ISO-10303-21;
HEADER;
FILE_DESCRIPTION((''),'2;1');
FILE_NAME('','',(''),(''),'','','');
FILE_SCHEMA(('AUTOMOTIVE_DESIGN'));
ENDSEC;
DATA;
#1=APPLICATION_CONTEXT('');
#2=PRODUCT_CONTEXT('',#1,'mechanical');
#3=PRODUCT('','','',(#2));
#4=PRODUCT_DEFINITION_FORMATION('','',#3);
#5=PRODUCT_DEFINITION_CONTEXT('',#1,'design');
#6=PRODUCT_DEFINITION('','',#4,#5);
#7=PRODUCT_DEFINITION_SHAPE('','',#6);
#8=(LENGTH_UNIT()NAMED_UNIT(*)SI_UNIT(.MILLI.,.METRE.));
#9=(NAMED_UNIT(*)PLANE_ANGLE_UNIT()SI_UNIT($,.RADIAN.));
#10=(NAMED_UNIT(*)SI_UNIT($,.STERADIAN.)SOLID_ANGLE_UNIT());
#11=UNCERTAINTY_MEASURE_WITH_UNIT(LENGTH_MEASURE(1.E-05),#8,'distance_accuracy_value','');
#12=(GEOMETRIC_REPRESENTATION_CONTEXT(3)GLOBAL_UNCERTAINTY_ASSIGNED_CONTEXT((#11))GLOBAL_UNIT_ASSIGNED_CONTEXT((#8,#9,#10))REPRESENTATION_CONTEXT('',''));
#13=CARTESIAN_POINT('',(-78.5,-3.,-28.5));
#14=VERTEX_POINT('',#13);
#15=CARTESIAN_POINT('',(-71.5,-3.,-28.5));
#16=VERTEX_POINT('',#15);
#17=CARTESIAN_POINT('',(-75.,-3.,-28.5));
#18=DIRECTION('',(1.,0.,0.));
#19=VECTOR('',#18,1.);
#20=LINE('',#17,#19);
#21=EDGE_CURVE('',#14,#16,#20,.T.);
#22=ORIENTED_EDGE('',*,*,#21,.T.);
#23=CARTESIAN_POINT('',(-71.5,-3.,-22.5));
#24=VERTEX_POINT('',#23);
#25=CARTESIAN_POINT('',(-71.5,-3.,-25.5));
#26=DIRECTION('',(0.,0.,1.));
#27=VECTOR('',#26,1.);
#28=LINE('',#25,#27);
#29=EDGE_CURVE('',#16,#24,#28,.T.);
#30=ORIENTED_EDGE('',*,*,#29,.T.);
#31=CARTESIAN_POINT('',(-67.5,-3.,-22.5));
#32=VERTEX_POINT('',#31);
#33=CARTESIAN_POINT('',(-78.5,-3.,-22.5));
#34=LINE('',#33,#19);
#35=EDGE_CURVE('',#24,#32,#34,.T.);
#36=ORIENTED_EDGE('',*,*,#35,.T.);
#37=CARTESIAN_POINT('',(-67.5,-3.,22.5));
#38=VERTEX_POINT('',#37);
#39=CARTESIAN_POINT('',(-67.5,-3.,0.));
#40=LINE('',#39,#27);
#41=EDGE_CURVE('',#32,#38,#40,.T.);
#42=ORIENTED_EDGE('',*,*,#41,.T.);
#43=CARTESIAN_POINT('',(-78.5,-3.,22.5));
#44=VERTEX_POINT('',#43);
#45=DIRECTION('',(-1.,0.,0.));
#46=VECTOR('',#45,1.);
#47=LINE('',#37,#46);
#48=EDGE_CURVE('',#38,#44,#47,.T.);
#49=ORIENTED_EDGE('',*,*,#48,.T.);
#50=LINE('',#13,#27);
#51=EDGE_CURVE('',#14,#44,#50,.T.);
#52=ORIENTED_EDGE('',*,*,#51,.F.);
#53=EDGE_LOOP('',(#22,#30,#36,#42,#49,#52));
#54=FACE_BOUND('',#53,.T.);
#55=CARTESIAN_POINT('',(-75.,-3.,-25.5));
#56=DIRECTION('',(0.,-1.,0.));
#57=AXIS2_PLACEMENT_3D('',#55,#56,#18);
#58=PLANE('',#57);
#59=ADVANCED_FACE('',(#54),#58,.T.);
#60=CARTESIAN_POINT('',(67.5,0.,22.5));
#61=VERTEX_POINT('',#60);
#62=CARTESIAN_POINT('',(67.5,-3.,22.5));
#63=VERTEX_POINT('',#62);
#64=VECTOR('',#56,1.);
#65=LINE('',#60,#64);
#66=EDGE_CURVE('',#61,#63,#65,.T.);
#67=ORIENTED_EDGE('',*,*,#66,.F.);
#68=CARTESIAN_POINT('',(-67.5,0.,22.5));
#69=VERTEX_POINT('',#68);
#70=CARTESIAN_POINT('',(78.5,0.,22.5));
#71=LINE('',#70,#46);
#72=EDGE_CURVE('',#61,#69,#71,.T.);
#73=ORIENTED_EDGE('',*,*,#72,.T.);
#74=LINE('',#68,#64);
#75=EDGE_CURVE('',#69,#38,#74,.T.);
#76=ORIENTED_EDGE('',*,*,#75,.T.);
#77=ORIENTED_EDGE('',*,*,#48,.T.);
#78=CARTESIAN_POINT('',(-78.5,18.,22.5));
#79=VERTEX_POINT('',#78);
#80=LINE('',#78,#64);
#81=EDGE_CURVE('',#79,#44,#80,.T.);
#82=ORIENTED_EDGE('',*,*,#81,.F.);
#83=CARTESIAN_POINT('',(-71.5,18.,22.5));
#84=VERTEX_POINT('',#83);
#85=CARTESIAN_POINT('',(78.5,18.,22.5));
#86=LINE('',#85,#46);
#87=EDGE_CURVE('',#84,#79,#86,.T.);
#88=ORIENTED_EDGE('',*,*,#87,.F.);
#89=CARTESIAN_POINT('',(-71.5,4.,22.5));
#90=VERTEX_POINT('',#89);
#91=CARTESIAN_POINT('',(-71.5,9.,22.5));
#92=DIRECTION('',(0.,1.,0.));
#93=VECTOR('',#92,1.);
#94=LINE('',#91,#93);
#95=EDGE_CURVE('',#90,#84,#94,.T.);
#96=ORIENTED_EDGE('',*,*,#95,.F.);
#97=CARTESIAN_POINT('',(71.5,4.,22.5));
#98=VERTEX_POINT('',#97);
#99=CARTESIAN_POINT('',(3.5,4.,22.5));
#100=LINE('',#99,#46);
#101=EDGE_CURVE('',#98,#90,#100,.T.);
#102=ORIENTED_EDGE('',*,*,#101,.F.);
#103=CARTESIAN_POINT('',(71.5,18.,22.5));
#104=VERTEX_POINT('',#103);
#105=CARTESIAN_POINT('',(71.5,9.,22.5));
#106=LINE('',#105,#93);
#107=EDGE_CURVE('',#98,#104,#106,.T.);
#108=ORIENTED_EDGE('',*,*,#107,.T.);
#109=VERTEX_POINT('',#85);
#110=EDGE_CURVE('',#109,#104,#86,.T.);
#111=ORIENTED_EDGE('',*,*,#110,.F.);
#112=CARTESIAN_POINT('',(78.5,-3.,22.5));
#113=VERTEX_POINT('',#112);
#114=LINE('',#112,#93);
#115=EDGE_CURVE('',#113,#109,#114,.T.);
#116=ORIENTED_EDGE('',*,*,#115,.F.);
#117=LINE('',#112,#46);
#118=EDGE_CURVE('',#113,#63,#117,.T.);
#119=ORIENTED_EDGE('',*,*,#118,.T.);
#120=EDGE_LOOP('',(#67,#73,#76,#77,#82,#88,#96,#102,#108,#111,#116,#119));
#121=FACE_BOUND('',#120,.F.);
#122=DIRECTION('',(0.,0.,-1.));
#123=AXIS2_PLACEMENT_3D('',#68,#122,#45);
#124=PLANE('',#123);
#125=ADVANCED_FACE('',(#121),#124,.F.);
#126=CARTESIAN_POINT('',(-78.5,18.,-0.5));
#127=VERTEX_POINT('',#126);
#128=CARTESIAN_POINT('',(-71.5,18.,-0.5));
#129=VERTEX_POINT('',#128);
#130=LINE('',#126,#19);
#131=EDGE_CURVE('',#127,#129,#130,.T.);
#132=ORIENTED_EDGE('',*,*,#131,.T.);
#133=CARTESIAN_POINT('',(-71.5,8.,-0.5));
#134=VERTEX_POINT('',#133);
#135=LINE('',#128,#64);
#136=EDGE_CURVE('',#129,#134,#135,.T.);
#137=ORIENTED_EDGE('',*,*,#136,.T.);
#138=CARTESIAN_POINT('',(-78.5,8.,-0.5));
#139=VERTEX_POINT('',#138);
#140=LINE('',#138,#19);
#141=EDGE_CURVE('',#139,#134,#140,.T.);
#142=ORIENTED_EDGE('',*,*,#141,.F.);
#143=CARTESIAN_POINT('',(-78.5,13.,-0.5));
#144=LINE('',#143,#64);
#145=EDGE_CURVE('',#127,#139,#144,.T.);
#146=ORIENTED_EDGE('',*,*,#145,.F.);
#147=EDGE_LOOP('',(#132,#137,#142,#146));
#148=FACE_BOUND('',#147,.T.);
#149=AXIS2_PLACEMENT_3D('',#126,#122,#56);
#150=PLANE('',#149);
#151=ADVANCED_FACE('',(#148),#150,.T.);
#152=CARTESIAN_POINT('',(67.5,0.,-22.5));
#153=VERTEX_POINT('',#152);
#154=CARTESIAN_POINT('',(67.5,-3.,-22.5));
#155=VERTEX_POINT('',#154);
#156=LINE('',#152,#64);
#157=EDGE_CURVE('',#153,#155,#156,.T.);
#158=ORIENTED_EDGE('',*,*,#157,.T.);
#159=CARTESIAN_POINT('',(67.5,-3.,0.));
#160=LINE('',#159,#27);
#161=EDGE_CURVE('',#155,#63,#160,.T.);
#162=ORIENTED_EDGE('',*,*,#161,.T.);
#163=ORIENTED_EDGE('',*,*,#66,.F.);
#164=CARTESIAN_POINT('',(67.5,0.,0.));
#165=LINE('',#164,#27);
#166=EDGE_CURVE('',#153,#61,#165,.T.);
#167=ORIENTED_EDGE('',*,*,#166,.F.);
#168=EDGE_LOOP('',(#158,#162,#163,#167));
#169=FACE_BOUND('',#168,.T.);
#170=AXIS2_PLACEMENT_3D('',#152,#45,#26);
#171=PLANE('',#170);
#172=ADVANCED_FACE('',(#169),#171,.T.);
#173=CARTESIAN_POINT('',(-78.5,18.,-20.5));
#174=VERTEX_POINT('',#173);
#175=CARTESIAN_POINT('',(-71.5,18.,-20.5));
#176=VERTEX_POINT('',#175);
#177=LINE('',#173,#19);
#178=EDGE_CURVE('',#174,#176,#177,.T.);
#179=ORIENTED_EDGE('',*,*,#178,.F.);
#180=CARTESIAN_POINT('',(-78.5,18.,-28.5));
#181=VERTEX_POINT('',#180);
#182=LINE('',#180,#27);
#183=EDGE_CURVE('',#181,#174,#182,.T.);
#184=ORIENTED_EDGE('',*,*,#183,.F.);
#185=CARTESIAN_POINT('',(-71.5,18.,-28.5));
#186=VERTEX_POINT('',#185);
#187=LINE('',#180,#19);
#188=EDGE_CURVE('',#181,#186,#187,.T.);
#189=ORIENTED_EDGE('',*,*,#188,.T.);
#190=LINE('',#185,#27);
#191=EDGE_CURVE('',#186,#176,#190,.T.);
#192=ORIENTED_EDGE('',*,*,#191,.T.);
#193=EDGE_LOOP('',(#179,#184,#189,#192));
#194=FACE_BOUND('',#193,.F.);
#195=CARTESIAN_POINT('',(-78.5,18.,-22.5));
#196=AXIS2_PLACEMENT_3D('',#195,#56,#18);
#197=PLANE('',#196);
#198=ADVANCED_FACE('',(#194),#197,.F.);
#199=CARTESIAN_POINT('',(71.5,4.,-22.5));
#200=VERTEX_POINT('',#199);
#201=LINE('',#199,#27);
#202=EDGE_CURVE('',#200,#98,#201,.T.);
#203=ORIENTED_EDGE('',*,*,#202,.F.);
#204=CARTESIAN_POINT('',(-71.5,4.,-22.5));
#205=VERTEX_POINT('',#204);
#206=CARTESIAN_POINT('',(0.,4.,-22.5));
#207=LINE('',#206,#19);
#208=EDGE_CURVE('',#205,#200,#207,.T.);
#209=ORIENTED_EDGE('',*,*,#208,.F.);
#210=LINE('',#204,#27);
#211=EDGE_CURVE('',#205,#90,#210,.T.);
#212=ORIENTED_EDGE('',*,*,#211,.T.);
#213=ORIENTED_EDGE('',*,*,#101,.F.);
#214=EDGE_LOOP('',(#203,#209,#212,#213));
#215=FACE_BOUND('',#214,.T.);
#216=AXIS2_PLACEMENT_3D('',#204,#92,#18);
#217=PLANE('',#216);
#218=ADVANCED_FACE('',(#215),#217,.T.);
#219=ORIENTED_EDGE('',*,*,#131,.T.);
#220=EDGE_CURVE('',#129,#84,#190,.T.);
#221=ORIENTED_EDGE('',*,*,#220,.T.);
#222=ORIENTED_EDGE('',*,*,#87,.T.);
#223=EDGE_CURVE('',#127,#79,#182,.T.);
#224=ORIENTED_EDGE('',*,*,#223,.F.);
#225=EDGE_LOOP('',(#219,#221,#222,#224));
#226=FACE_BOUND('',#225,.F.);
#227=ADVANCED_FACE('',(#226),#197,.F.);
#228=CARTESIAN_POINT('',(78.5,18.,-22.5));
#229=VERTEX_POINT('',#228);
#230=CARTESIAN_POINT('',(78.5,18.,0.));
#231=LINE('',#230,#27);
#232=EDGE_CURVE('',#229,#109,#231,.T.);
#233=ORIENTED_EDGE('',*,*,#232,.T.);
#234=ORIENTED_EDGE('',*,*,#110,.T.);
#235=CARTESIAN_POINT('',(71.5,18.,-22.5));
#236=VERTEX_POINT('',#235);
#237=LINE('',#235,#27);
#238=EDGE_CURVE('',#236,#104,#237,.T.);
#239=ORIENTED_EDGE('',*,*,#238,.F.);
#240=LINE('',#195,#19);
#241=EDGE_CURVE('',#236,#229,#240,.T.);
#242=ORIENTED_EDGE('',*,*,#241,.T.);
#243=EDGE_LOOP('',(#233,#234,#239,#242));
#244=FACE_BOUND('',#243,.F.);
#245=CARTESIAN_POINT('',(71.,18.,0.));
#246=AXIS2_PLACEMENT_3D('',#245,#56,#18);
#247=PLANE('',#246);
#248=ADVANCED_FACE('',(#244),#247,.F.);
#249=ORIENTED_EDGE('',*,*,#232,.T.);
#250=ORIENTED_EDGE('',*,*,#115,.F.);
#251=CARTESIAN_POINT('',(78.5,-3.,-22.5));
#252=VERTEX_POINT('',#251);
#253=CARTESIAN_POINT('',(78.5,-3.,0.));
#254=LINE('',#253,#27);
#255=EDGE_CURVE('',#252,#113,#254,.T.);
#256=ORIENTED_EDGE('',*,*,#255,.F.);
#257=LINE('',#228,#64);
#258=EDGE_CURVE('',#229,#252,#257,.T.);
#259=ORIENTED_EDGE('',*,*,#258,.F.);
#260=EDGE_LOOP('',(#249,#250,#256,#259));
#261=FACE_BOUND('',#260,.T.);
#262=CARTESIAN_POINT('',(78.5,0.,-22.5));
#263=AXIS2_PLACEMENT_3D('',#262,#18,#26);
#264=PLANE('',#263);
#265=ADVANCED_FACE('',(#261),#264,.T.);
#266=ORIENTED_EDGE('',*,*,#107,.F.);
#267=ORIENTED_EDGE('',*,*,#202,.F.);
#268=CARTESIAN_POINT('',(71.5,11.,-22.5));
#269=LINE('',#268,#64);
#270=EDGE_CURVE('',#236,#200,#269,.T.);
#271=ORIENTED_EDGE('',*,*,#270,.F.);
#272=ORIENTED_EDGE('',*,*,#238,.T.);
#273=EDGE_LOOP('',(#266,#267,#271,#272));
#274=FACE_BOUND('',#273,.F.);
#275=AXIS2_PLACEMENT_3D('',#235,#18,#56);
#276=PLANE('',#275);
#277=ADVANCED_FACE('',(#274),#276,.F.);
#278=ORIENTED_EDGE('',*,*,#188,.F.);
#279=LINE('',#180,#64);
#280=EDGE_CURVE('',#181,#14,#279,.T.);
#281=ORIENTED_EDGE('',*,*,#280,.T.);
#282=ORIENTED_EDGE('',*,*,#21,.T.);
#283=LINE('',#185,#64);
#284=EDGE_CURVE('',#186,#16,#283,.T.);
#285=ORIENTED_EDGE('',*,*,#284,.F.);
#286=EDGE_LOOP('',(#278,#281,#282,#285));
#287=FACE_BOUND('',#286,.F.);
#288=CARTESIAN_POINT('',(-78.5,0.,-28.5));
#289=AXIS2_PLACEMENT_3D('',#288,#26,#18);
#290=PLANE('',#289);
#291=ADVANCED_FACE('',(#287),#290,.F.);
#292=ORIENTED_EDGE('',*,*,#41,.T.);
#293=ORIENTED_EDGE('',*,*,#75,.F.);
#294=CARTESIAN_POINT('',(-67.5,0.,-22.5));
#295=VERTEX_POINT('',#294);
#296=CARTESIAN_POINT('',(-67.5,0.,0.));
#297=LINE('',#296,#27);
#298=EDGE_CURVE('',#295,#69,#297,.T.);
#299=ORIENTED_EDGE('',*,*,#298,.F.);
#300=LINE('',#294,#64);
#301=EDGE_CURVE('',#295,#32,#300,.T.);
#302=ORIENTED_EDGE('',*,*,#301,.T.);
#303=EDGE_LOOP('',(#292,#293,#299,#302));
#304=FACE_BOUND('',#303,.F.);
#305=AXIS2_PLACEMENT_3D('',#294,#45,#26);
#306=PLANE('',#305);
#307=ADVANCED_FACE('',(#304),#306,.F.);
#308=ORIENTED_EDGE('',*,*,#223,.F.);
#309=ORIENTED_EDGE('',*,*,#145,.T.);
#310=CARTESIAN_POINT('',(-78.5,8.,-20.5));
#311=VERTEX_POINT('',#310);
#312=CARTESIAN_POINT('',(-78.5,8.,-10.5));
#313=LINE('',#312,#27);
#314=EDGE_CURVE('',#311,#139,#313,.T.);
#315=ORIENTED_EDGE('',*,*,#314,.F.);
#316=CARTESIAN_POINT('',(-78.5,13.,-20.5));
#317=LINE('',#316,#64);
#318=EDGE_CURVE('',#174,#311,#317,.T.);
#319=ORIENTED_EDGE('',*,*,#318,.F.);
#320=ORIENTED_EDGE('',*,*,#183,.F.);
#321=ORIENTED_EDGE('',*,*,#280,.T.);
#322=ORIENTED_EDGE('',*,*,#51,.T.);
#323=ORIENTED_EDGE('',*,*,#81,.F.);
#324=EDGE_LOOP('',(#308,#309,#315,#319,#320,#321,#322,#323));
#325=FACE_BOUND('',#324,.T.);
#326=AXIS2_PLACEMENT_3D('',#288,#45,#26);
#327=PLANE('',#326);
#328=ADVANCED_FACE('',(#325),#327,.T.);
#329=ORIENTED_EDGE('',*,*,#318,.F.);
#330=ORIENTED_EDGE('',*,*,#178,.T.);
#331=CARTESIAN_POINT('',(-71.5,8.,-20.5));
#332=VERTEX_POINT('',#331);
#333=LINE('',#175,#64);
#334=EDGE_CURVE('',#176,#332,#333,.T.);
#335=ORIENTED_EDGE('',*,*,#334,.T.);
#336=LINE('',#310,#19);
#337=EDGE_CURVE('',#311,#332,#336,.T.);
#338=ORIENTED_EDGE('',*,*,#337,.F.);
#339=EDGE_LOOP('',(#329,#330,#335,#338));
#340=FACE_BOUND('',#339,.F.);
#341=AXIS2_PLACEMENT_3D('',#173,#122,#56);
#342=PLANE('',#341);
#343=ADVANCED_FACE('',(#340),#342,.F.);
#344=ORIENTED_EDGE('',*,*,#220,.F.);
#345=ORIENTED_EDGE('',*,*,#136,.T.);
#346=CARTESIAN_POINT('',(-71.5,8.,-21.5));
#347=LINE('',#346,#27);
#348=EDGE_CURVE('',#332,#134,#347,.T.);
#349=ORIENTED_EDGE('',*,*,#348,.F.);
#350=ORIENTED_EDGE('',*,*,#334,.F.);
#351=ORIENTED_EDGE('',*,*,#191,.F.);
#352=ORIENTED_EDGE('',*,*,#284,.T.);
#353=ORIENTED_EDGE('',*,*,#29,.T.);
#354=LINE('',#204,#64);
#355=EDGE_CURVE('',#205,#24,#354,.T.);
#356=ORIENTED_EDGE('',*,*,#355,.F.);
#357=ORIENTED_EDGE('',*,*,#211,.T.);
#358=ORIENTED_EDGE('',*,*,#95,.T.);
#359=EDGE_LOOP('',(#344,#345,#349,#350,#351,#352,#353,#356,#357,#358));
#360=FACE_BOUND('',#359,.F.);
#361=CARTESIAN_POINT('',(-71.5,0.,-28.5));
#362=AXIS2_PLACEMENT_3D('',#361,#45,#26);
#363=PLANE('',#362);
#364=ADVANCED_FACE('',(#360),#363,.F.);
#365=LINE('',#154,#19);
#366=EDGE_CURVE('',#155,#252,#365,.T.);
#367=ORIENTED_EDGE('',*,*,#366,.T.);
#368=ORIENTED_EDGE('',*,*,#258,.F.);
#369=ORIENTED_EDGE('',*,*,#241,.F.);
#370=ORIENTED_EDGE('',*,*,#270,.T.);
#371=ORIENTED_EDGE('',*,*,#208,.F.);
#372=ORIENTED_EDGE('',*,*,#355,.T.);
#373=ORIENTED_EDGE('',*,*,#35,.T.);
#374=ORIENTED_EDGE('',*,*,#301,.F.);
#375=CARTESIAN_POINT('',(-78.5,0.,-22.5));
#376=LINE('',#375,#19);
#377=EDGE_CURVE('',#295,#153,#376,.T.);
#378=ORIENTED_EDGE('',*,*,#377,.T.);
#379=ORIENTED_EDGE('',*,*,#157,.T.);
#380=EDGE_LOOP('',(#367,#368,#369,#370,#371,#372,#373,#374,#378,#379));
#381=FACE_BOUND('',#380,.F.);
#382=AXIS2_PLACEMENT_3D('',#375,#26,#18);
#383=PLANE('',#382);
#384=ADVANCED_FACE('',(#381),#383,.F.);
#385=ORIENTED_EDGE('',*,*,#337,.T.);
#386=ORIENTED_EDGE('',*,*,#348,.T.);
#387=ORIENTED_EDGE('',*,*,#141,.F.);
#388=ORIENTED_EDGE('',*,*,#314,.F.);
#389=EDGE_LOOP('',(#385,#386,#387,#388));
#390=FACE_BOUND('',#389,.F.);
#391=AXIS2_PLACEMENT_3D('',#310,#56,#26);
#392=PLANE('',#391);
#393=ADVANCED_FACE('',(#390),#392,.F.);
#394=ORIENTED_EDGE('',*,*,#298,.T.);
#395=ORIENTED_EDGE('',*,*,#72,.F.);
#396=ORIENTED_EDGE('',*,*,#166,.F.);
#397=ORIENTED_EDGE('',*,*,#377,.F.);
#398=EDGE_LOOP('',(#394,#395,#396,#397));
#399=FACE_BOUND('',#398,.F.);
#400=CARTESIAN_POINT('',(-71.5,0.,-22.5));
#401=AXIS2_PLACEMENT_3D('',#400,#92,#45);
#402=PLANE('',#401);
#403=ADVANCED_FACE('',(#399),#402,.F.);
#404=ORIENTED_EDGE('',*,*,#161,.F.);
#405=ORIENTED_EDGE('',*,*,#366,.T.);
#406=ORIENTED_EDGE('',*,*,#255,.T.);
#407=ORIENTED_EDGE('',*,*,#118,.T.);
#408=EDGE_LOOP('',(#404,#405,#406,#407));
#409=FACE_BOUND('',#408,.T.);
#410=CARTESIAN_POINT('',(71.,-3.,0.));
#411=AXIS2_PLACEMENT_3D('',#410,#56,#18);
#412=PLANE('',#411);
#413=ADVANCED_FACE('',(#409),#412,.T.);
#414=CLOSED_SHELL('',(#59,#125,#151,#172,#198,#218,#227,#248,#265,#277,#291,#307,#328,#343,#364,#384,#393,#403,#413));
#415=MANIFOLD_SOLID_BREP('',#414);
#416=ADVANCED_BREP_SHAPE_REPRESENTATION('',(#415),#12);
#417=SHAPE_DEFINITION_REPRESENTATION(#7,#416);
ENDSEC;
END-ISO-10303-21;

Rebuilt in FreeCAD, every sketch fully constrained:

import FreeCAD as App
import Part
import Sketcher

V = App.Vector
Q = App.Units.Quantity


def add_polygon(sketch, points):
    """Adds a closed chain of lines whose ends are joined by coincident constraints."""
    first, n = sketch.GeometryCount, len(points)
    for a, b in zip(points, points[1:] + points[:1]):
        sketch.addGeometry(Part.LineSegment(App.Vector(*a, 0), App.Vector(*b, 0)), False)
    for i in range(n):
        sketch.addConstraint(Sketcher.Constraint("Coincident", first + i, 2, first + (i + 1) % n, 1))

doc = App.newDocument("Part")
body = doc.addObject("PartDesign::Body", "Body")

# Sketch on XZ plane
sketch1 = doc.addObject("Sketcher::SketchObject", "Sketch")
body.addObject(sketch1)
sketch1.AttachmentSupport = (doc.XZ_Plane, [""])
sketch1.MapMode = "FlatFace"
add_polygon(sketch1, [(-78.5, 22.5), (-78.5, -22.5), (78.5, -22.5), (78.5, 22.5)])  # lines 0-3
sketch1.addConstraint([
    Sketcher.Constraint("Vertical", 0),
    Sketcher.Constraint("Horizontal", 1),
    Sketcher.Constraint("Vertical", 2),
    Sketcher.Constraint("Horizontal", 3),
    Sketcher.Constraint("Symmetric", 0, 2, 2, 2, -1, 1),
    Sketcher.Constraint("DistanceX", 1, 1, 1, 2, Q("157 mm")),
    Sketcher.Constraint("DistanceY", 0, 2, 0, 1, Q("45 mm")),
])
pad1 = doc.addObject("PartDesign::Pad", "Pad")
body.addObject(pad1)
pad1.Profile = sketch1
pad1.Length = 18
pad1.Reversed = True

# Sketch on XY plane
sketch2 = doc.addObject("Sketcher::SketchObject", "Sketch001")
body.addObject(sketch2)
sketch2.AttachmentSupport = (doc.XY_Plane, [""])
sketch2.MapMode = "FlatFace"
sketch2.AttachmentOffset = App.Placement(V(0, 0, -22.5), App.Rotation())
add_polygon(sketch2, [(-71.5, 4), (-71.5, 18), (71.5, 18), (71.5, 4)])  # lines 0-3
sketch2.addConstraint([
    Sketcher.Constraint("Vertical", 0),
    Sketcher.Constraint("Horizontal", 1),
    Sketcher.Constraint("Vertical", 2),
    Sketcher.Constraint("Horizontal", 3),
    Sketcher.Constraint("DistanceX", 1, 1, 1, 2, Q("143 mm")),
    Sketcher.Constraint("DistanceY", 0, 1, 0, 2, Q("14 mm")),
    Sketcher.Constraint("DistanceY", -1, 1, 0, 2, Q("18 mm")),
    Sketcher.Constraint("DistanceX", 0, 2, -1, 1, Q("71.5 mm")),
])
pocket1 = doc.addObject("PartDesign::Pocket", "Pocket")
body.addObject(pocket1)
pocket1.Profile = sketch2
pocket1.Length = 55
pocket1.Reversed = True

# Sketch on XY plane
sketch3 = doc.addObject("Sketcher::SketchObject", "Sketch002")
body.addObject(sketch3)
sketch3.AttachmentSupport = (doc.XY_Plane, [""])
sketch3.MapMode = "FlatFace"
sketch3.AttachmentOffset = App.Placement(V(0, 0, -22.5), App.Rotation())
add_polygon(sketch3, [(-71.5, 18), (-71.5, 0), (-78.5, 0), (-78.5, 18)])  # lines 0-3
sketch3.addConstraint([
    Sketcher.Constraint("Vertical", 0),
    Sketcher.Constraint("Horizontal", 1),
    Sketcher.Constraint("Vertical", 2),
    Sketcher.Constraint("Horizontal", 3),
    Sketcher.Constraint("PointOnObject", 0, 2, -1),
    Sketcher.Constraint("DistanceX", 1, 2, 1, 1, Q("7 mm")),
    Sketcher.Constraint("DistanceY", 0, 2, 0, 1, Q("18 mm")),
    Sketcher.Constraint("DistanceX", 0, 2, -1, 1, Q("71.5 mm")),
])
pad2 = doc.addObject("PartDesign::Pad", "Pad001")
body.addObject(pad2)
pad2.Profile = sketch3
pad2.Length = 6
pad2.Reversed = True

# Sketch on YZ plane
sketch4 = doc.addObject("Sketcher::SketchObject", "Sketch003")
body.addObject(sketch4)
sketch4.AttachmentSupport = (doc.YZ_Plane, [""])
sketch4.MapMode = "FlatFace"
sketch4.AttachmentOffset = App.Placement(V(0, 0, -78.5), App.Rotation())
add_polygon(sketch4, [(18, -0.5), (18, -20.5), (8, -20.5), (8, -0.5)])  # lines 0-3
sketch4.addConstraint([
    Sketcher.Constraint("Vertical", 0),
    Sketcher.Constraint("Horizontal", 1),
    Sketcher.Constraint("Vertical", 2),
    Sketcher.Constraint("Horizontal", 3),
    Sketcher.Constraint("DistanceX", 1, 2, 1, 1, Q("10 mm")),
    Sketcher.Constraint("DistanceY", 0, 2, 0, 1, Q("20 mm")),
    Sketcher.Constraint("DistanceX", -1, 1, 0, 2, Q("18 mm")),
    Sketcher.Constraint("DistanceY", 0, 2, -1, 1, Q("20.5 mm")),
])
pocket2 = doc.addObject("PartDesign::Pocket", "Pocket001")
body.addObject(pocket2)
pocket2.Profile = sketch4
pocket2.Length = 25
pocket2.Reversed = True
body2 = doc.addObject("PartDesign::Body", "Body001")

# Sketch on XZ plane
sketch5 = doc.addObject("Sketcher::SketchObject", "Sketch004")
body2.addObject(sketch5)
sketch5.AttachmentSupport = (doc.getObject("XZ_Plane001"), [""])
sketch5.MapMode = "FlatFace"
add_polygon(sketch5, [(67.5, 22.5), (67.5, -22.5), (78.5, -22.5), (78.5, 22.5)])  # lines 0-3
sketch5.addConstraint([
    Sketcher.Constraint("Vertical", 0),
    Sketcher.Constraint("Horizontal", 1),
    Sketcher.Constraint("Vertical", 2),
    Sketcher.Constraint("Horizontal", 3),
    Sketcher.Constraint("DistanceX", 1, 1, 1, 2, Q("11 mm")),
    Sketcher.Constraint("DistanceY", 0, 2, 0, 1, Q("45 mm")),
    Sketcher.Constraint("DistanceX", -1, 1, 0, 2, Q("67.5 mm")),
    Sketcher.Constraint("DistanceY", 0, 2, -1, 1, Q("22.5 mm")),
])
pad3 = doc.addObject("PartDesign::Pad", "Pad002")
body2.addObject(pad3)
pad3.Profile = sketch5
pad3.Length = 3
body3 = doc.addObject("PartDesign::Body", "Body002")

# Sketch on XZ plane
sketch6 = doc.addObject("Sketcher::SketchObject", "Sketch005")
body3.addObject(sketch6)
sketch6.AttachmentSupport = (doc.getObject("XZ_Plane002"), [""])
sketch6.MapMode = "FlatFace"
add_polygon(sketch6, [(-67.5, -22.5), (-67.5, 22.5), (-78.5, 22.5), (-78.5, -22.5)])  # lines 0-3
sketch6.addConstraint([
    Sketcher.Constraint("Vertical", 0),
    Sketcher.Constraint("Horizontal", 1),
    Sketcher.Constraint("Vertical", 2),
    Sketcher.Constraint("Horizontal", 3),
    Sketcher.Constraint("DistanceX", 1, 2, 1, 1, Q("11 mm")),
    Sketcher.Constraint("DistanceY", 0, 1, 0, 2, Q("45 mm")),
    Sketcher.Constraint("DistanceX", 0, 2, -1, 1, Q("67.5 mm")),
    Sketcher.Constraint("DistanceY", -1, 1, 0, 2, Q("22.5 mm")),
])
pad4 = doc.addObject("PartDesign::Pad", "Pad003")
body3.addObject(pad4)
pad4.Profile = sketch6
pad4.Length = 3
doc.recompute()

boolean = doc.addObject("PartDesign::Boolean", "Boolean")
body2.addObject(boolean)
boolean.Type = "Fuse"
boolean.addObjects([body])
doc.recompute()

boolean2 = doc.addObject("PartDesign::Boolean", "Boolean001")
body2.addObject(boolean2)
boolean2.Type = "Fuse"
boolean2.addObjects([body3])

# Sketch on XZ plane
sketch7 = doc.addObject("Sketcher::SketchObject", "Sketch006")
body2.addObject(sketch7)
sketch7.AttachmentSupport = (doc.getObject("XZ_Plane001"), [""])
sketch7.MapMode = "FlatFace"
add_polygon(sketch7, [(-78.5, -22.5), (-78.5, -28.5), (-71.5, -28.5), (-71.5, -22.5)])  # lines 0-3
sketch7.addConstraint([
    Sketcher.Constraint("Vertical", 0),
    Sketcher.Constraint("Horizontal", 1),
    Sketcher.Constraint("Vertical", 2),
    Sketcher.Constraint("Horizontal", 3),
    Sketcher.Constraint("DistanceX", 1, 1, 1, 2, Q("7 mm")),
    Sketcher.Constraint("DistanceY", 0, 2, 0, 1, Q("6 mm")),
    Sketcher.Constraint("DistanceX", 0, 2, -1, 1, Q("78.5 mm")),
    Sketcher.Constraint("DistanceY", 0, 2, -1, 1, Q("28.5 mm")),
])
pad5 = doc.addObject("PartDesign::Pad", "Pad004")
body2.addObject(pad5)
pad5.Profile = sketch7
pad5.Length = 3

doc.recompute()
